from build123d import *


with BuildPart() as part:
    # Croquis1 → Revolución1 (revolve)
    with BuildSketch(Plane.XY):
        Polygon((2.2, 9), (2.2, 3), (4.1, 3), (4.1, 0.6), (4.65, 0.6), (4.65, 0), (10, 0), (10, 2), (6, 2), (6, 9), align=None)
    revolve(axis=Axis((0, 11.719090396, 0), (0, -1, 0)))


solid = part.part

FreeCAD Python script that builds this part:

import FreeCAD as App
import Part
import Sketcher
from FreeCAD import Vector
Q = App.Units.Quantity

doc = App.newDocument("Part")
body = doc.addObject("PartDesign::Body", "Body")

sketch1 = doc.addObject("Sketcher::SketchObject", "Sketch")
body.addObject(sketch1)
sketch1.AttachmentSupport = (doc.XY_Plane, [""])
sketch1.MapMode = "FlatFace"
sketch1.addGeometry([
    Part.LineSegment(Vector(2.2, 9, 0), Vector(2.2, 3, 0)),
    Part.LineSegment(Vector(2.2, 3, 0), Vector(4.1, 3, 0)),
    Part.LineSegment(Vector(4.1, 3, 0), Vector(4.1, 0.6, 0)),
    Part.LineSegment(Vector(4.1, 0.6, 0), Vector(4.7, 0.6, 0)),
    Part.LineSegment(Vector(4.7, 0.6, 0), Vector(4.7, 0, 0)),
    Part.LineSegment(Vector(4.7, 0, 0), Vector(10, 0, 0)),
    Part.LineSegment(Vector(10, 0, 0), Vector(10, 2, 0)),
    Part.LineSegment(Vector(10, 2, 0), Vector(6, 2, 0)),
    Part.LineSegment(Vector(6, 2, 0), Vector(6, 9, 0)),
    Part.LineSegment(Vector(6, 9, 0), Vector(2.2, 9, 0)),
], False)
sketch1.addConstraint([
    Sketcher.Constraint("Coincident", 0, 2, 1, 1),
    Sketcher.Constraint("Coincident", 1, 2, 2, 1),
    Sketcher.Constraint("Coincident", 2, 2, 3, 1),
    Sketcher.Constraint("Coincident", 3, 2, 4, 1),
    Sketcher.Constraint("Coincident", 4, 2, 5, 1),
    Sketcher.Constraint("Coincident", 5, 2, 6, 1),
    Sketcher.Constraint("Coincident", 6, 2, 7, 1),
    Sketcher.Constraint("Coincident", 7, 2, 8, 1),
    Sketcher.Constraint("Coincident", 8, 2, 9, 1),
    Sketcher.Constraint("Coincident", 9, 2, 0, 1),
    Sketcher.Constraint("Vertical", 0),
    Sketcher.Constraint("Horizontal", 1),
    Sketcher.Constraint("Vertical", 2),
    Sketcher.Constraint("Horizontal", 3),
    Sketcher.Constraint("Vertical", 4),
    Sketcher.Constraint("Horizontal", 5),
    Sketcher.Constraint("Vertical", 6),
    Sketcher.Constraint("Horizontal", 7),
    Sketcher.Constraint("Vertical", 8),
    Sketcher.Constraint("Horizontal", 9),
    Sketcher.Constraint("PointOnObject", 4, 2, -1),
    Sketcher.Constraint("DistanceX", 7, 2, 7, 1, Q("4 mm")),
    Sketcher.Constraint("DistanceY", 0, 2, 0, 1, Q("6 mm")),
    Sketcher.Constraint("DistanceY", 6, 1, 6, 2, Q("2 mm")),
    Sketcher.Constraint("DistanceY", 8, 1, 8, 2, Q("7 mm")),
    Sketcher.Constraint("DistanceX", 1, 1, 1, 2, Q("1.9 mm")),
    Sketcher.Constraint("DistanceX", 9, 2, 9, 1, Q("3.8 mm")),
    Sketcher.Constraint("DistanceY", 2, 2, 2, 1, Q("2.4 mm")),
    Sketcher.Constraint("DistanceX", -1, 1, 5, 2, Q("10 mm")),
    Sketcher.Constraint("DistanceX", 3, 1, 3, 2, Q("0.55 mm")),
])
revolution = doc.addObject("PartDesign::Revolution", "Revolution")
body.addObject(revolution)
revolution.Profile = sketch1
revolution.ReferenceAxis = (sketch1, ["V_Axis"])
revolution.Angle = 360

doc.recompute()
